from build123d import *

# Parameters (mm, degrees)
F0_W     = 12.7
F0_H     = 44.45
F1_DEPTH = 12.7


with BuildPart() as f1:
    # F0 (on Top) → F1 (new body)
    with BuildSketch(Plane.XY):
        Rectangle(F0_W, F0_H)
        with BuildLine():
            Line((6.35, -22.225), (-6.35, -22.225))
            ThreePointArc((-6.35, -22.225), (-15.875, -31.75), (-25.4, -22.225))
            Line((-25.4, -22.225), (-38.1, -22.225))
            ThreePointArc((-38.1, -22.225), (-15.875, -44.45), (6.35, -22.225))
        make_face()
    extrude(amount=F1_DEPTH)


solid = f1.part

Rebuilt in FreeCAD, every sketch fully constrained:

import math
import FreeCAD as App
import Part
import Sketcher
from FreeCAD import Vector
Q = App.Units.Quantity

doc = App.newDocument("Part")
body = doc.addObject("PartDesign::Body", "Body")

# Sketch on XY plane
sketch1 = doc.addObject("Sketcher::SketchObject", "Sketch")
body.addObject(sketch1)
sketch1.AttachmentSupport = (doc.XY_Plane, [""])
sketch1.MapMode = "FlatFace"
sketch1.addGeometry([
    Part.LineSegment(Vector(-6, 22, 0), Vector(-6, -22, 0)),  # 0
    Part.ArcOfCircle(Part.Circle(Vector(-16, -22, 0), Vector(0, 0, 1), 10), math.radians(180), math.radians(360)),  # 1
    Part.LineSegment(Vector(-25, -22, 0), Vector(-38, -22, 0)),  # 2
    Part.ArcOfCircle(Part.Circle(Vector(-16, -22, 0), Vector(0, 0, 1), 22), math.radians(180), math.radians(360)),  # 3
    Part.LineSegment(Vector(6, -22, 0), Vector(6, 22, 0)),  # 4
    Part.LineSegment(Vector(6, 22, 0), Vector(-6, 22, 0)),  # 5
], False)
sketch1.addConstraint([
    Sketcher.Constraint("Tangent", 0, 2, 1, 2),
    Sketcher.Constraint("Coincident", 1, 1, 2, 1),
    Sketcher.Constraint("Coincident", 2, 2, 3, 1),
    Sketcher.Constraint("Tangent", 3, 2, 4, 1),
    Sketcher.Constraint("Coincident", 4, 2, 5, 1),
    Sketcher.Constraint("Coincident", 5, 2, 0, 1),
    Sketcher.Constraint("Vertical", 0),
    Sketcher.Constraint("Horizontal", 2),
    Sketcher.Constraint("Vertical", 4),
    Sketcher.Constraint("Horizontal", 5),
    Sketcher.Constraint("Coincident", 3, 3, 1, 3),
    Sketcher.Constraint("Symmetric", 0, 2, 4, 2, -1, 1),
    Sketcher.Constraint("Horizontal", 0, 2, 1, 1),
    Sketcher.Constraint("DistanceX", 2, 2, 2, 1, Q("0.5 in")),
    Sketcher.Constraint("DistanceX", 1, 1, -1, 1, Q("1 in")),
    Sketcher.Constraint("DistanceY", 0, 2, 0, 1, Q("1.75 in")),
])
pad1 = doc.addObject("PartDesign::Pad", "Pad")
body.addObject(pad1)
pad1.Profile = sketch1
pad1.Length = Q("0.5 in")

doc.recompute()
